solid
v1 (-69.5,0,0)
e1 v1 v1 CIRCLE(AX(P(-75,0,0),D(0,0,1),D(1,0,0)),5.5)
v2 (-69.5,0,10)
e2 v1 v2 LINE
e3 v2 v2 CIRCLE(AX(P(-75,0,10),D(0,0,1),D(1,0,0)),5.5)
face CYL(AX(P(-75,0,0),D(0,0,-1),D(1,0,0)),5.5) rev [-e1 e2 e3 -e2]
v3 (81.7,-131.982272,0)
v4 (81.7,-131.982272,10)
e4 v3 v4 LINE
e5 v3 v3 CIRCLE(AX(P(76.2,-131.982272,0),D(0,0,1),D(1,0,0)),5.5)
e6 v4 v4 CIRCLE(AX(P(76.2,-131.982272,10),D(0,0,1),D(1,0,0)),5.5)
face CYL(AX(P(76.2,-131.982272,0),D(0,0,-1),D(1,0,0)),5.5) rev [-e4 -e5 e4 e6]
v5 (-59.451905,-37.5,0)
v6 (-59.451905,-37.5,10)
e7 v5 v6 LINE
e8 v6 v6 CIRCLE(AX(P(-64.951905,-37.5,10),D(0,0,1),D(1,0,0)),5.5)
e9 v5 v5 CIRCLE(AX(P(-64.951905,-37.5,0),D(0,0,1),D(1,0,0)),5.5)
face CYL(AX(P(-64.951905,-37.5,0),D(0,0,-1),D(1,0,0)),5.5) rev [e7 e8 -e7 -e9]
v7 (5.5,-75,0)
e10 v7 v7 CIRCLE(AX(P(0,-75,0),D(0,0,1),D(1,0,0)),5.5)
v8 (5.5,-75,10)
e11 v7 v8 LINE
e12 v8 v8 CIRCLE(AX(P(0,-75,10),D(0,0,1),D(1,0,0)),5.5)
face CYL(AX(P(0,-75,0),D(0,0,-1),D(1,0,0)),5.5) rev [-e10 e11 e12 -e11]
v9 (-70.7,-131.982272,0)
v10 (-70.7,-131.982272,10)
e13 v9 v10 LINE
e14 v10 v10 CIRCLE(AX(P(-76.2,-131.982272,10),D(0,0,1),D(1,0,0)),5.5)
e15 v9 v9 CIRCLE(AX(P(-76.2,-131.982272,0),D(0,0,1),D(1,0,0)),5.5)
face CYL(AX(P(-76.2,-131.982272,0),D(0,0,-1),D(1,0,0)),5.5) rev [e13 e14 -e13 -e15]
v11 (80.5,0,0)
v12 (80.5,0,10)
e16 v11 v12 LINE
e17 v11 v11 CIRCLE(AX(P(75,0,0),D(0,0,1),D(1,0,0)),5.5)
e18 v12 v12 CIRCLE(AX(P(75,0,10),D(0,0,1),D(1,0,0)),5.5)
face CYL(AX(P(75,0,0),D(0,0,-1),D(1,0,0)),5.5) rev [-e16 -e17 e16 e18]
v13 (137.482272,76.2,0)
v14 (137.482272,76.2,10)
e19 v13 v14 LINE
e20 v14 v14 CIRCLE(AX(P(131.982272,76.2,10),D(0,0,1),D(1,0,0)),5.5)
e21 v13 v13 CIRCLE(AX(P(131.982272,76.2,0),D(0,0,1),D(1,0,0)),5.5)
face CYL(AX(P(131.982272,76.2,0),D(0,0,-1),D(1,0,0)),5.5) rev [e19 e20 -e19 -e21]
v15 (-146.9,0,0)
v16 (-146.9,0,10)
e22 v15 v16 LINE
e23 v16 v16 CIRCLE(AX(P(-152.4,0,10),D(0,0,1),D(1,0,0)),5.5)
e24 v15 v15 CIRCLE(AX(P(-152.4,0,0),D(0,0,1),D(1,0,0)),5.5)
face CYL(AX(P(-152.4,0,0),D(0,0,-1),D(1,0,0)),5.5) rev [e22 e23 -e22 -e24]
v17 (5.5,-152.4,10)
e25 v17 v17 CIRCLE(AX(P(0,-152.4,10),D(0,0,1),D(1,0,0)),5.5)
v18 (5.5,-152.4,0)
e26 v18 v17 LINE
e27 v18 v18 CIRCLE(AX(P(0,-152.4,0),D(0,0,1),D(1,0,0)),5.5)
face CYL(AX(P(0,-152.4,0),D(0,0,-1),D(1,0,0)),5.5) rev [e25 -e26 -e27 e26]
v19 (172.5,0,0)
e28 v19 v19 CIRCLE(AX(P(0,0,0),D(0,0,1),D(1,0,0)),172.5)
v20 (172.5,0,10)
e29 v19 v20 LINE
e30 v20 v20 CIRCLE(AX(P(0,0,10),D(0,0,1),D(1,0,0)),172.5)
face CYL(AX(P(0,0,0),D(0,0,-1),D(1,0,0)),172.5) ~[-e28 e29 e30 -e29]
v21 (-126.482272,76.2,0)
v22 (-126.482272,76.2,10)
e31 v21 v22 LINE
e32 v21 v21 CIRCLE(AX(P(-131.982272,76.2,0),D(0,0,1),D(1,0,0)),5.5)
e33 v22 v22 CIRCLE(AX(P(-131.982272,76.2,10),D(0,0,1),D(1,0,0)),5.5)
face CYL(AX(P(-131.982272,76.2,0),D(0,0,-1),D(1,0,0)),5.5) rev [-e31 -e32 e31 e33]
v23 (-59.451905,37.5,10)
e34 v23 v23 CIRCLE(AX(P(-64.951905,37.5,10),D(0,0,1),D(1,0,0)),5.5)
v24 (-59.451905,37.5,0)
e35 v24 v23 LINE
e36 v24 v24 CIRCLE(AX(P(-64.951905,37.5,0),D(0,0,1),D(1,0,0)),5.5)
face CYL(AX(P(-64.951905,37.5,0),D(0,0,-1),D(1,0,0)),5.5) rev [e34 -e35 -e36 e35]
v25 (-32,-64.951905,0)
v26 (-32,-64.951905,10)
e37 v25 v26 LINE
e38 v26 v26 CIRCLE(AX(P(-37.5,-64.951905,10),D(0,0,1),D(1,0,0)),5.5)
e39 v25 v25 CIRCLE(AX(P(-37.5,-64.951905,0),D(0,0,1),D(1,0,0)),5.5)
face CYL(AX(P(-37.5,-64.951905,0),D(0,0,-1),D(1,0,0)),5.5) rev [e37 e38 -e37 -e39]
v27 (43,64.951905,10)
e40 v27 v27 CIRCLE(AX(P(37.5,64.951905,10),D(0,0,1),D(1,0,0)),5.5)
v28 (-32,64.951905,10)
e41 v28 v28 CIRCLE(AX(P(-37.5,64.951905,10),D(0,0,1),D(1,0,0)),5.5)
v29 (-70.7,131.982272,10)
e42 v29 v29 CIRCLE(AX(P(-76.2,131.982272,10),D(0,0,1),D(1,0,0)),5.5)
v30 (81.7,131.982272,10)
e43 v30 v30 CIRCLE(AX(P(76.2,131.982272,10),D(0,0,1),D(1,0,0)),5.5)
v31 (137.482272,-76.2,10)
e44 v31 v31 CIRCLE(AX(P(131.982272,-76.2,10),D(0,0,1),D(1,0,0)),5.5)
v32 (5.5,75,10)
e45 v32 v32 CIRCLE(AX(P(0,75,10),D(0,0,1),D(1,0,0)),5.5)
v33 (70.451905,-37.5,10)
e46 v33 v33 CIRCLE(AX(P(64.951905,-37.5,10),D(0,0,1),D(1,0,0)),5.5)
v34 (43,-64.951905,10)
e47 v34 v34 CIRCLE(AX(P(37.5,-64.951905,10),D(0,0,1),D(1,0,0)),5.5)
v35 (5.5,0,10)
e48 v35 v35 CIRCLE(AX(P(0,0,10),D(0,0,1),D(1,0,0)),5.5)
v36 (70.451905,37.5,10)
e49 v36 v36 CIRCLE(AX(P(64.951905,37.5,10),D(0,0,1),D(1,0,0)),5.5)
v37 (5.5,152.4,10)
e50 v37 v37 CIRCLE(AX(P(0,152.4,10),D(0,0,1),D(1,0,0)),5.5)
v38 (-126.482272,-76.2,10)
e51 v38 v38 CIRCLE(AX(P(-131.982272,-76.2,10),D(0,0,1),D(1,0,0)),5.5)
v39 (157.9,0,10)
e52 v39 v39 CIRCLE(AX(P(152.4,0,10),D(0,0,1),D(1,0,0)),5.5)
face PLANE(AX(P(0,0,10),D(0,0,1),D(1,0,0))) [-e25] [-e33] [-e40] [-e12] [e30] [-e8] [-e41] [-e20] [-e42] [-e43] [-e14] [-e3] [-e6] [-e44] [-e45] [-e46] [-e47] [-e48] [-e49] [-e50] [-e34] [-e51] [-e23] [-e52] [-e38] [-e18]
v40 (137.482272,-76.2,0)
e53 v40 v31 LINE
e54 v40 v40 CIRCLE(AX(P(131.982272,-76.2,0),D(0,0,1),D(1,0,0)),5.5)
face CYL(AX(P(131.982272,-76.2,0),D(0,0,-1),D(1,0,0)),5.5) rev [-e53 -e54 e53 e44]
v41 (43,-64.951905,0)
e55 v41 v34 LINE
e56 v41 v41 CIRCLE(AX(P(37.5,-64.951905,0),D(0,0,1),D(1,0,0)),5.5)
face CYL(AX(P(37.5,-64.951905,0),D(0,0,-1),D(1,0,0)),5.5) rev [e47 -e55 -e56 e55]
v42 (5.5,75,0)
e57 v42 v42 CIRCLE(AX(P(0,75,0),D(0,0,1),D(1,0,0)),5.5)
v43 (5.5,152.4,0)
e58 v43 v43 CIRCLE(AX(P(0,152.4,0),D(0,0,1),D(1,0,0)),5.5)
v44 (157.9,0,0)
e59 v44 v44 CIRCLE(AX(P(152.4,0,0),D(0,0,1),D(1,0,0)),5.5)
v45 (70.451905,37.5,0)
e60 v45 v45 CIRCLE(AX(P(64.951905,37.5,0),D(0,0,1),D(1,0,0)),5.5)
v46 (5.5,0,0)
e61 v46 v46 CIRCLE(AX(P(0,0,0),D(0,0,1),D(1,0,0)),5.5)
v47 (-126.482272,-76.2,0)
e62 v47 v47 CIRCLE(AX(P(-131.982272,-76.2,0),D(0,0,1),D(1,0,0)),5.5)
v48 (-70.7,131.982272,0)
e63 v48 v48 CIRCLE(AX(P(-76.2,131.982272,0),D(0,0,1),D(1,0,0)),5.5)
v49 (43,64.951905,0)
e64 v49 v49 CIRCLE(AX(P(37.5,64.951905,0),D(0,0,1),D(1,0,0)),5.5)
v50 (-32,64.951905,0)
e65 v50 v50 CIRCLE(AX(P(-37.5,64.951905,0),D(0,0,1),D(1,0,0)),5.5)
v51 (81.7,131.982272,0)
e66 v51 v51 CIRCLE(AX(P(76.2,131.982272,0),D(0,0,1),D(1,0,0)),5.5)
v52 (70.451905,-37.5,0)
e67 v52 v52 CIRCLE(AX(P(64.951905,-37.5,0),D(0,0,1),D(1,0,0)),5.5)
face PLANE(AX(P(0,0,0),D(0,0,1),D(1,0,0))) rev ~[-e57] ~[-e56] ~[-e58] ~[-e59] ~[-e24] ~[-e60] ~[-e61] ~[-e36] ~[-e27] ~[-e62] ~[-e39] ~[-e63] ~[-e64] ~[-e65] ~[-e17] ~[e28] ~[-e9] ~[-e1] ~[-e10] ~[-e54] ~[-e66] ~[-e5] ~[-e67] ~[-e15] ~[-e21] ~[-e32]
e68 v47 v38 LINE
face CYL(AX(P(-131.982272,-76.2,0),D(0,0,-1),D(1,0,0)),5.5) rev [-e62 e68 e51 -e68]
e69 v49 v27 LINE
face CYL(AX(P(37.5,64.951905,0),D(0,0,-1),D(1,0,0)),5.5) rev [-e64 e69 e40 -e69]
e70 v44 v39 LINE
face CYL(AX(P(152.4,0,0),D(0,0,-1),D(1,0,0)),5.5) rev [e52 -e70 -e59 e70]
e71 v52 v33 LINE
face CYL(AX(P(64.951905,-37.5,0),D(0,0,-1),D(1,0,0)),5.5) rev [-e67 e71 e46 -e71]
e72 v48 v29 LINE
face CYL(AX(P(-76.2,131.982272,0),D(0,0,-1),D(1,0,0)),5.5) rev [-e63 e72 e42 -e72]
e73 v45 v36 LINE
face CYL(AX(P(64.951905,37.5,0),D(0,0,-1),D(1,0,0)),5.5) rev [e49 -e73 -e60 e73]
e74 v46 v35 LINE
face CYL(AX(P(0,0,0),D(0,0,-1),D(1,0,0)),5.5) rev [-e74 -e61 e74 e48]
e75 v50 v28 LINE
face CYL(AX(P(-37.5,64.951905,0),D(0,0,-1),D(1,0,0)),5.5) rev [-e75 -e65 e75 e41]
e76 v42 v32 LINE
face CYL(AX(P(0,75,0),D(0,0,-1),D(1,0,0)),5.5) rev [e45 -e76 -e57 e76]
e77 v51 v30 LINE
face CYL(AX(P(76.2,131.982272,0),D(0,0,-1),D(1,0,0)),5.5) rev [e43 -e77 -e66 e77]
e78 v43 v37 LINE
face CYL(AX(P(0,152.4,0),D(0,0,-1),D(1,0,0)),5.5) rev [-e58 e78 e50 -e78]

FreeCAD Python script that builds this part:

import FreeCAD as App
import Part
import Sketcher

V = App.Vector

doc = App.newDocument("Part")
params = doc.addObject("Spreadsheet::Sheet", "Params")
for row, (alias, value) in enumerate([
    ("sketch1_diameter", "345 mm"),
    ("sketch1_diameter2", "11 mm"),
    ("pad1_length", "10 mm"),
], start=1):
    params.set(f"A{row}", alias)
    params.set(f"B{row}", "=" + value)
    params.setAlias(f"B{row}", alias)

body = doc.addObject("PartDesign::Body", "Body")

# Sketch on XY plane
sketch1 = doc.addObject("Sketcher::SketchObject", "Sketch")
body.addObject(sketch1)
sketch1.AttachmentSupport = (doc.XY_Plane, [""])
sketch1.MapMode = "FlatFace"
sketch1.addGeometry([
    Part.Circle(V(0, 0, 0), V(0, 0, 1), 172),  # 0
    Part.Circle(V(-76, -132, 0), V(0, 0, 1), 6),  # 1
    Part.Circle(V(-132, -76, 0), V(0, 0, 1), 6),  # 2
    Part.Circle(V(-38, -65, 0), V(0, 0, 1), 6),  # 3
    Part.Circle(V(-65, -38, 0), V(0, 0, 1), 6),  # 4
    Part.Circle(V(0, -152, 0), V(0, 0, 1), 6),  # 5
    Part.Circle(V(76, -132, 0), V(0, 0, 1), 6),  # 6
    Part.Circle(V(0, -75, 0), V(0, 0, 1), 6),  # 7
    Part.Circle(V(38, -65, 0), V(0, 0, 1), 6),  # 8
    Part.Circle(V(65, -38, 0), V(0, 0, 1), 6),  # 9
    Part.Circle(V(132, -76, 0), V(0, 0, 1), 6),  # 10
    Part.Circle(V(-152, 0, 0), V(0, 0, 1), 6),  # 11
    Part.Circle(V(-132, 76, 0), V(0, 0, 1), 6),  # 12
    Part.Circle(V(-75, 0, 0), V(0, 0, 1), 6),  # 13
    Part.Circle(V(-65, 38, 0), V(0, 0, 1), 6),  # 14
    Part.Circle(V(-38, 65, 0), V(0, 0, 1), 6),  # 15
    Part.Circle(V(-76, 132, 0), V(0, 0, 1), 6),  # 16
    Part.Circle(V(0, 0, 0), V(0, 0, 1), 6),  # 17
    Part.Circle(V(75, 0, 0), V(0, 0, 1), 6),  # 18
    Part.Circle(V(65, 38, 0), V(0, 0, 1), 6),  # 19
    Part.Circle(V(0, 75, 0), V(0, 0, 1), 6),  # 20
    Part.Circle(V(38, 65, 0), V(0, 0, 1), 6),  # 21
    Part.Circle(V(152, 0, 0), V(0, 0, 1), 6),  # 22
    Part.Circle(V(132, 76, 0), V(0, 0, 1), 6),  # 23
    Part.Circle(V(0, 152, 0), V(0, 0, 1), 6),  # 24
    Part.Circle(V(76, 132, 0), V(0, 0, 1), 6),  # 25
], False)
sketch1.addConstraint([
    Sketcher.Constraint("Coincident", 0, 3, -1, 1),
    Sketcher.Constraint("Coincident", 17, 3, -1, 1),
    Sketcher.Constraint("Equal", 1, 2),
    Sketcher.Constraint("Equal", 2, 3),
    Sketcher.Constraint("Equal", 3, 4),
    Sketcher.Constraint("Equal", 4, 5),
    Sketcher.Constraint("Equal", 5, 6),
    Sketcher.Constraint("Equal", 6, 7),
    Sketcher.Constraint("Equal", 7, 8),
    Sketcher.Constraint("Equal", 8, 9),
    Sketcher.Constraint("Equal", 9, 10),
    Sketcher.Constraint("Equal", 10, 11),
    Sketcher.Constraint("Equal", 11, 12),
    Sketcher.Constraint("Equal", 12, 13),
    Sketcher.Constraint("Equal", 13, 14),
    Sketcher.Constraint("Equal", 14, 15),
    Sketcher.Constraint("Equal", 15, 16),
    Sketcher.Constraint("Equal", 16, 17),
    Sketcher.Constraint("Equal", 17, 18),
    Sketcher.Constraint("Equal", 18, 19),
    Sketcher.Constraint("Equal", 19, 20),
    Sketcher.Constraint("Equal", 20, 21),
    Sketcher.Constraint("Equal", 21, 22),
    Sketcher.Constraint("Equal", 22, 23),
    Sketcher.Constraint("Equal", 23, 24),
    Sketcher.Constraint("Equal", 24, 25),
    Sketcher.Constraint("Symmetric", 10, 3, 12, 3, -1, 1),
    Sketcher.Constraint("Symmetric", 9, 3, 14, 3, -1, 1),
    Sketcher.Constraint("Symmetric", 8, 3, 15, 3, -1, 1),
    Sketcher.Constraint("Symmetric", 6, 3, 16, 3, -1, 1),
    Sketcher.Constraint("Symmetric", 13, 3, 18, 3, -1, 1),
    Sketcher.Constraint("Symmetric", 4, 3, 19, 3, -1, 1),
    Sketcher.Constraint("Symmetric", 7, 3, 20, 3, -1, 1),
    Sketcher.Constraint("Symmetric", 3, 3, 21, 3, -1, 1),
    Sketcher.Constraint("Symmetric", 11, 3, 22, 3, -1, 1),
    Sketcher.Constraint("Symmetric", 2, 3, 23, 3, -1, 1),
    Sketcher.Constraint("Symmetric", 5, 3, 24, 3, -1, 1),
    Sketcher.Constraint("Symmetric", 1, 3, 25, 3, -1, 1),
    Sketcher.Constraint("Symmetric", 1, 3, 6, 3, -2),
    Sketcher.Constraint("Symmetric", 3, 3, 8, 3, -2),
    Sketcher.Constraint("Symmetric", 4, 3, 9, 3, -2),
    Sketcher.Constraint("Symmetric", 2, 3, 10, 3, -2),
    Sketcher.Constraint("PointOnObject", 5, 3, -2),
    Sketcher.Constraint("PointOnObject", 7, 3, -2),
    Sketcher.Constraint("PointOnObject", 11, 3, -1),
    Sketcher.Constraint("PointOnObject", 13, 3, -1),
    Sketcher.Constraint("Diameter", 0, 345.0),
    Sketcher.Constraint("Diameter", 1, 11.0),
    Sketcher.Constraint("DistanceY", 7, 3, -1, 1, 75.0),
    Sketcher.Constraint("DistanceX", 13, 3, -1, 1, 75.0),
    Sketcher.Constraint("DistanceX", 3, 3, 8, 3, 75.0),
    Sketcher.Constraint("DistanceY", 4, 3, 14, 3, 75.0),
    Sketcher.Constraint("DistanceX", 1, 3, -1, 1, 76.2),
    Sketcher.Constraint("DistanceY", 2, 3, -1, 1, 76.2),
    Sketcher.Constraint("DistanceY", 5, 3, -1, 1, 152.4),
    Sketcher.Constraint("DistanceX", 11, 3, -1, 1, 152.4),
    Sketcher.Constraint("DistanceY", 1, 3, -1, 1, 131.982272),
    Sketcher.Constraint("DistanceX", 2, 3, -1, 1, 131.982272),
    Sketcher.Constraint("DistanceY", 3, 3, -1, 1, 64.951905),
    Sketcher.Constraint("DistanceX", 4, 3, -1, 1, 64.951905),
])
sketch1.setExpression("Constraints[46]", "Params.sketch1_diameter")
sketch1.setExpression("Constraints[47]", "Params.sketch1_diameter2")
pad1 = doc.addObject("PartDesign::Pad", "Pad")
body.addObject(pad1)
pad1.Profile = sketch1
pad1.setExpression("Length", "Params.pad1_length")

doc.recompute()
